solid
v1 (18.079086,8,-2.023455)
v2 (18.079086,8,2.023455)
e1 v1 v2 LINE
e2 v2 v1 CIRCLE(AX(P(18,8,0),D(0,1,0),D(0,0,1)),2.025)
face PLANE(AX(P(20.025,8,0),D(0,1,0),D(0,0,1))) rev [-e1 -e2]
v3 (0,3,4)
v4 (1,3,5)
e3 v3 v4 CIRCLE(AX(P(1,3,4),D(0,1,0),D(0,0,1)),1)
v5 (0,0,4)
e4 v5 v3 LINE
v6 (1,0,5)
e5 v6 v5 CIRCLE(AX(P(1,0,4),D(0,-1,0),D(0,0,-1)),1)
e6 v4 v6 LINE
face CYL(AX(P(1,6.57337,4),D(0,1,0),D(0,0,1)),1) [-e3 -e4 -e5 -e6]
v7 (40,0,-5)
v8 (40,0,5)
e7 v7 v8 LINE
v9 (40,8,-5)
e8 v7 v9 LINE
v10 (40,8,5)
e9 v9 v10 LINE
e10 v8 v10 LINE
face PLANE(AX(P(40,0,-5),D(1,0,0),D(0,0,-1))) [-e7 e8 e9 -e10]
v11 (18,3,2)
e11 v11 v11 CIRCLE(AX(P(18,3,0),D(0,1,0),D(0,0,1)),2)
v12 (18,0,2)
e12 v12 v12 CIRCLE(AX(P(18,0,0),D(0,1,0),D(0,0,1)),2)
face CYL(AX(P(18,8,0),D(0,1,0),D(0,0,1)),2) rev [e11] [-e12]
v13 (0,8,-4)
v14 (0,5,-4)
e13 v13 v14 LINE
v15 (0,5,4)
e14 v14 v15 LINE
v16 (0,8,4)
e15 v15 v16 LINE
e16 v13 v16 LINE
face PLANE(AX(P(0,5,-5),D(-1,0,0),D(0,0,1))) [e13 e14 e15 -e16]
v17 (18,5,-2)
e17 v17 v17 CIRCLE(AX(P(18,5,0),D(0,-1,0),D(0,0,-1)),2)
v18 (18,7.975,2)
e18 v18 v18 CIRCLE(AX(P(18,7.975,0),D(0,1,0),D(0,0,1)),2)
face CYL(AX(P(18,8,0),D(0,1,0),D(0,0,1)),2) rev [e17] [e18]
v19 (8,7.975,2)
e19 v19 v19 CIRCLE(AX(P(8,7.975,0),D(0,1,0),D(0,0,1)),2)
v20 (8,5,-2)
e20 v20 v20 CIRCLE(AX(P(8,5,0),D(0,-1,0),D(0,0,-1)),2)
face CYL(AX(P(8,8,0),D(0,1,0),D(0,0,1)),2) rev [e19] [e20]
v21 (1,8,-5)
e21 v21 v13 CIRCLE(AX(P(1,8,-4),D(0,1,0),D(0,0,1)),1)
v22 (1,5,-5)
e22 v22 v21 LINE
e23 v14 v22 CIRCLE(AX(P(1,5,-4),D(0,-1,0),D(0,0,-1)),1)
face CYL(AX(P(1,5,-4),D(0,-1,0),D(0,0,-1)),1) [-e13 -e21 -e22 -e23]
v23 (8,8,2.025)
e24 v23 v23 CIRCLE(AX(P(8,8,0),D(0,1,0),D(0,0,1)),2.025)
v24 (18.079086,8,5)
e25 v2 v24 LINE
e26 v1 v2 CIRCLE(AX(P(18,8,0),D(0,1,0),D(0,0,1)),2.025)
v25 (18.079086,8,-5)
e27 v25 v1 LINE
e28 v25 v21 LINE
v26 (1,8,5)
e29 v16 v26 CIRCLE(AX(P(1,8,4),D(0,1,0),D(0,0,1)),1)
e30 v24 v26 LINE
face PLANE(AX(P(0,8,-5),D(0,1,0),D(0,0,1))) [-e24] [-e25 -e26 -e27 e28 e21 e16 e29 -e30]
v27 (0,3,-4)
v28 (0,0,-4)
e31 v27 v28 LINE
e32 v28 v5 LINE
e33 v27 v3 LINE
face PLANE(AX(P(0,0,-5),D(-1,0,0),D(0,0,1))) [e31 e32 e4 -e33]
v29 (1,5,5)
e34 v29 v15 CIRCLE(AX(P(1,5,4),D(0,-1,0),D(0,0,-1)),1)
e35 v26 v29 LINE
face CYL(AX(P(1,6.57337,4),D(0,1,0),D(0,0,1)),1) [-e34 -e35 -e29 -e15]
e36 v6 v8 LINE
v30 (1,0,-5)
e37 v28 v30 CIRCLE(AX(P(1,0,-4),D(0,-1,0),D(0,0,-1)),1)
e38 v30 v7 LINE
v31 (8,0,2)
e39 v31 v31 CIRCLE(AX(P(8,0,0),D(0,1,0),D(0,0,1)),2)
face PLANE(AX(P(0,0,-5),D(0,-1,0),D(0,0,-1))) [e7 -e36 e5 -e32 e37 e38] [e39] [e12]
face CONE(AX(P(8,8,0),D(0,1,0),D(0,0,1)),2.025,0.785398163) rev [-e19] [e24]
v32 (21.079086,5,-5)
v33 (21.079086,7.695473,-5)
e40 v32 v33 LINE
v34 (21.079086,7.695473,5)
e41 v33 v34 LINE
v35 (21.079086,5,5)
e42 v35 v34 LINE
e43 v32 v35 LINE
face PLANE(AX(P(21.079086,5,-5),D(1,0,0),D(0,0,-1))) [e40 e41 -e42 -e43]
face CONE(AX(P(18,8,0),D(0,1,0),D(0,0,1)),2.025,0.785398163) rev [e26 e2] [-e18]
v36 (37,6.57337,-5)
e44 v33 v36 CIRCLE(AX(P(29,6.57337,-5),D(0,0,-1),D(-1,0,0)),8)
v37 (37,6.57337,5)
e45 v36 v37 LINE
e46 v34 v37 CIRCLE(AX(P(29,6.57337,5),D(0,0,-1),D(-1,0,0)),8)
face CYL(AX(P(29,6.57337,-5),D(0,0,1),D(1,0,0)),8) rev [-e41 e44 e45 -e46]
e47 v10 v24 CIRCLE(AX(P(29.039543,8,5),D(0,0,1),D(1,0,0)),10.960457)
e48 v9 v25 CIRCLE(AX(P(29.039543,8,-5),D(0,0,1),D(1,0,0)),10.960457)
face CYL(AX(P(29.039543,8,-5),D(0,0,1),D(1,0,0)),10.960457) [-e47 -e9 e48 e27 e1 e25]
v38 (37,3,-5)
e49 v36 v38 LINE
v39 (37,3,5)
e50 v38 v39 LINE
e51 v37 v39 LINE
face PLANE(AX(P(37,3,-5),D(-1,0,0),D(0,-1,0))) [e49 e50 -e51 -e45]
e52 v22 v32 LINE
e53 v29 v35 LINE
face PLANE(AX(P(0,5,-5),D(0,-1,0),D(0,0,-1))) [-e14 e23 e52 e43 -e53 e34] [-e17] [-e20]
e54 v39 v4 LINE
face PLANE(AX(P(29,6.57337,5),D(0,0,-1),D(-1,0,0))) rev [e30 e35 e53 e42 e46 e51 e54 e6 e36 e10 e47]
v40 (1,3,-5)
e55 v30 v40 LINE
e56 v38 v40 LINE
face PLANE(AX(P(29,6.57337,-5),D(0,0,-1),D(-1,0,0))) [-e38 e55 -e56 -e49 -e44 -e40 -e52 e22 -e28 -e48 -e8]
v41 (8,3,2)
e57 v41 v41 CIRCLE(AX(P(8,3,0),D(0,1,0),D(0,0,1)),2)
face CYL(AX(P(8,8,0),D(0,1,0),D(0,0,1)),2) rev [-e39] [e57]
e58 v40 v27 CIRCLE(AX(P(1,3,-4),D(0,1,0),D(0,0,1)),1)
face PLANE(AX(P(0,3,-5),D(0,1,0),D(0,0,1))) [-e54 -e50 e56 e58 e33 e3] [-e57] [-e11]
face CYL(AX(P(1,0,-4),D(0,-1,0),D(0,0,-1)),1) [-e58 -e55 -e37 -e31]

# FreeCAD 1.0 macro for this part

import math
import FreeCAD as App
import Part
import Sketcher
Q = App.Units.Quantity


def edges_at(feature, points):
    """Names of the edges that pass closest to the given points."""
    edges = feature.Shape.Edges
    near = lambda p: min(range(len(edges)), key=lambda i: edges[i].distToShape(Part.Vertex(*p))[0])
    return sorted({f"Edge{near(p) + 1}" for p in points})


def add_polygon(sketch, points):
    """Adds a closed chain of lines whose ends are joined by coincident constraints."""
    first, n = sketch.GeometryCount, len(points)
    for a, b in zip(points, points[1:] + points[:1]):
        sketch.addGeometry(Part.LineSegment(App.Vector(*a, 0), App.Vector(*b, 0)), False)
    for i in range(n):
        sketch.addConstraint(Sketcher.Constraint("Coincident", first + i, 2, first + (i + 1) % n, 1))

doc = App.newDocument("Part")
body = doc.addObject("PartDesign::Body", "Body")

# Sketch on XY plane
sketch1 = body.newObject("Sketcher::SketchObject", "Sketch")
sketch1.AttachmentSupport = (doc.getObject("XY_Plane"), [""])
sketch1.MapMode = "FlatFace"
sketch1.addGeometry([
    Part.LineSegment(App.Vector(0, 0, 0), App.Vector(40, 0, 0)),  # 0
    Part.LineSegment(App.Vector(40, 0, 0), App.Vector(40, 8, 0)),  # 1
    Part.ArcOfCircle(Part.Circle(App.Vector(29, 8, 0), App.Vector(0, 0, 1), 11), math.radians(0), math.radians(180)),  # 2
    Part.LineSegment(App.Vector(18.1, 8, 0), App.Vector(0, 8, 0)),  # 3
    Part.LineSegment(App.Vector(0, 8, 0), App.Vector(0, 5, 0)),  # 4
    Part.LineSegment(App.Vector(0, 5, 0), App.Vector(21.1, 5, 0)),  # 5
    Part.LineSegment(App.Vector(21.1, 5, 0), App.Vector(21.1, 7.7, 0)),  # 6
    Part.ArcOfCircle(Part.Circle(App.Vector(29, 6.6, 0), App.Vector(0, 0, 1), 8), math.radians(0), math.radians(172)),  # 7
    Part.LineSegment(App.Vector(37, 6.6, 0), App.Vector(37, 3, 0)),  # 8
    Part.LineSegment(App.Vector(37, 3, 0), App.Vector(0, 3, 0)),  # 9
    Part.LineSegment(App.Vector(0, 3, 0), App.Vector(0, 0, 0)),  # 10
], False)
sketch1.addConstraint([
    Sketcher.Constraint("Coincident", 0, 2, 1, 1),
    Sketcher.Constraint("Tangent", 1, 2, 2, 1),
    Sketcher.Constraint("Coincident", 2, 2, 3, 1),
    Sketcher.Constraint("Coincident", 3, 2, 4, 1),
    Sketcher.Constraint("Coincident", 4, 2, 5, 1),
    Sketcher.Constraint("Coincident", 5, 2, 6, 1),
    Sketcher.Constraint("Coincident", 6, 2, 7, 2),
    Sketcher.Constraint("Tangent", 7, 1, 8, 1),
    Sketcher.Constraint("Coincident", 8, 2, 9, 1),
    Sketcher.Constraint("Coincident", 9, 2, 10, 1),
    Sketcher.Constraint("Coincident", 10, 2, 0, 1),
    Sketcher.Constraint("Horizontal", 0),
    Sketcher.Constraint("Vertical", 1),
    Sketcher.Constraint("Horizontal", 3),
    Sketcher.Constraint("Vertical", 4),
    Sketcher.Constraint("Horizontal", 5),
    Sketcher.Constraint("Vertical", 6),
    Sketcher.Constraint("Vertical", 8),
    Sketcher.Constraint("Horizontal", 9),
    Sketcher.Constraint("Vertical", 10),
    Sketcher.Constraint("Coincident", 10, 2, -1, 1),
    Sketcher.Constraint("PointOnObject", 3, 2, -2),
    Sketcher.Constraint("Horizontal", 1, 2, 2, 2),
    Sketcher.Constraint("Equal", 4, 10),
    Sketcher.Constraint("Radius", 7, Q("8 mm")),
    Sketcher.Constraint("DistanceX", 0, 1, 0, 2, Q("40 mm")),
    Sketcher.Constraint("DistanceX", 9, 2, 9, 1, Q("37 mm")),
    Sketcher.Constraint("DistanceY", 1, 1, 1, 2, Q("8 mm")),
    Sketcher.Constraint("DistanceY", 4, 2, 4, 1, Q("3 mm")),
    Sketcher.Constraint("DistanceX", 2, 2, 5, 2, Q("3 mm")),
    Sketcher.Constraint("Radius", 2, Q("10.960457 mm")),
    Sketcher.Constraint("DistanceY", 8, 2, 8, 1, Q("3.57337 mm")),
])
pad1 = body.newObject("PartDesign::Pad", "Pad")
pad1.Profile = sketch1
pad1.Type = "TwoLengths"
pad1.Length = 5
pad1.Length2 = 5
doc.recompute()

fillet = body.newObject("PartDesign::Fillet", "Fillet")
fillet.Base = (pad1, edges_at(pad1, [
    (0, 6.5, -5),
    (0, 1.5, 5),
    (0, 6.5, 5),
    (0, 1.5, -5),
]))
fillet.Radius = 1

# Sketch on YZ plane
sketch2 = body.newObject("Sketcher::SketchObject", "Sketch001")
sketch2.AttachmentSupport = (doc.getObject("YZ_Plane"), [""])
sketch2.MapMode = "FlatFace"
sketch2.AttachmentOffset = App.Placement(App.Vector(0, 0, 8), App.Rotation())
add_polygon(sketch2, [(0, 0), (8, 0), (8, 2.025), (7.975, 2), (0, 2)])  # lines 0-4
sketch2.addConstraint([
    Sketcher.Constraint("Horizontal", 0),
    Sketcher.Constraint("Vertical", 1),
    Sketcher.Constraint("Horizontal", 3),
    Sketcher.Constraint("Vertical", 4),
    Sketcher.Constraint("Coincident", 4, 2, -1, 1),
    Sketcher.Constraint("DistanceX", 0, 1, 0, 2, Q("8 mm")),
    Sketcher.Constraint("DistanceY", 4, 2, 4, 1, Q("2 mm")),
    Sketcher.Constraint("Angle", 2, Q("-135 deg")),
    Sketcher.Constraint("DistanceX", 3, 2, 3, 1, Q("7.975 mm")),
])
groove = body.newObject("PartDesign::Groove", "Groove")
groove.Profile = sketch2
groove.ReferenceAxis = (sketch2, ["H_Axis"])
groove.Angle = 360
doc.recompute()

linearpattern = body.newObject("PartDesign::LinearPattern", "LinearPattern")
linearpattern.Originals = [groove]
linearpattern.Direction = (doc.getObject("X_Axis"), [""])
linearpattern.Mode = "offset"
linearpattern.Offset = 10
linearpattern.Occurrences = 2
body.Tip = linearpattern

doc.recompute()
